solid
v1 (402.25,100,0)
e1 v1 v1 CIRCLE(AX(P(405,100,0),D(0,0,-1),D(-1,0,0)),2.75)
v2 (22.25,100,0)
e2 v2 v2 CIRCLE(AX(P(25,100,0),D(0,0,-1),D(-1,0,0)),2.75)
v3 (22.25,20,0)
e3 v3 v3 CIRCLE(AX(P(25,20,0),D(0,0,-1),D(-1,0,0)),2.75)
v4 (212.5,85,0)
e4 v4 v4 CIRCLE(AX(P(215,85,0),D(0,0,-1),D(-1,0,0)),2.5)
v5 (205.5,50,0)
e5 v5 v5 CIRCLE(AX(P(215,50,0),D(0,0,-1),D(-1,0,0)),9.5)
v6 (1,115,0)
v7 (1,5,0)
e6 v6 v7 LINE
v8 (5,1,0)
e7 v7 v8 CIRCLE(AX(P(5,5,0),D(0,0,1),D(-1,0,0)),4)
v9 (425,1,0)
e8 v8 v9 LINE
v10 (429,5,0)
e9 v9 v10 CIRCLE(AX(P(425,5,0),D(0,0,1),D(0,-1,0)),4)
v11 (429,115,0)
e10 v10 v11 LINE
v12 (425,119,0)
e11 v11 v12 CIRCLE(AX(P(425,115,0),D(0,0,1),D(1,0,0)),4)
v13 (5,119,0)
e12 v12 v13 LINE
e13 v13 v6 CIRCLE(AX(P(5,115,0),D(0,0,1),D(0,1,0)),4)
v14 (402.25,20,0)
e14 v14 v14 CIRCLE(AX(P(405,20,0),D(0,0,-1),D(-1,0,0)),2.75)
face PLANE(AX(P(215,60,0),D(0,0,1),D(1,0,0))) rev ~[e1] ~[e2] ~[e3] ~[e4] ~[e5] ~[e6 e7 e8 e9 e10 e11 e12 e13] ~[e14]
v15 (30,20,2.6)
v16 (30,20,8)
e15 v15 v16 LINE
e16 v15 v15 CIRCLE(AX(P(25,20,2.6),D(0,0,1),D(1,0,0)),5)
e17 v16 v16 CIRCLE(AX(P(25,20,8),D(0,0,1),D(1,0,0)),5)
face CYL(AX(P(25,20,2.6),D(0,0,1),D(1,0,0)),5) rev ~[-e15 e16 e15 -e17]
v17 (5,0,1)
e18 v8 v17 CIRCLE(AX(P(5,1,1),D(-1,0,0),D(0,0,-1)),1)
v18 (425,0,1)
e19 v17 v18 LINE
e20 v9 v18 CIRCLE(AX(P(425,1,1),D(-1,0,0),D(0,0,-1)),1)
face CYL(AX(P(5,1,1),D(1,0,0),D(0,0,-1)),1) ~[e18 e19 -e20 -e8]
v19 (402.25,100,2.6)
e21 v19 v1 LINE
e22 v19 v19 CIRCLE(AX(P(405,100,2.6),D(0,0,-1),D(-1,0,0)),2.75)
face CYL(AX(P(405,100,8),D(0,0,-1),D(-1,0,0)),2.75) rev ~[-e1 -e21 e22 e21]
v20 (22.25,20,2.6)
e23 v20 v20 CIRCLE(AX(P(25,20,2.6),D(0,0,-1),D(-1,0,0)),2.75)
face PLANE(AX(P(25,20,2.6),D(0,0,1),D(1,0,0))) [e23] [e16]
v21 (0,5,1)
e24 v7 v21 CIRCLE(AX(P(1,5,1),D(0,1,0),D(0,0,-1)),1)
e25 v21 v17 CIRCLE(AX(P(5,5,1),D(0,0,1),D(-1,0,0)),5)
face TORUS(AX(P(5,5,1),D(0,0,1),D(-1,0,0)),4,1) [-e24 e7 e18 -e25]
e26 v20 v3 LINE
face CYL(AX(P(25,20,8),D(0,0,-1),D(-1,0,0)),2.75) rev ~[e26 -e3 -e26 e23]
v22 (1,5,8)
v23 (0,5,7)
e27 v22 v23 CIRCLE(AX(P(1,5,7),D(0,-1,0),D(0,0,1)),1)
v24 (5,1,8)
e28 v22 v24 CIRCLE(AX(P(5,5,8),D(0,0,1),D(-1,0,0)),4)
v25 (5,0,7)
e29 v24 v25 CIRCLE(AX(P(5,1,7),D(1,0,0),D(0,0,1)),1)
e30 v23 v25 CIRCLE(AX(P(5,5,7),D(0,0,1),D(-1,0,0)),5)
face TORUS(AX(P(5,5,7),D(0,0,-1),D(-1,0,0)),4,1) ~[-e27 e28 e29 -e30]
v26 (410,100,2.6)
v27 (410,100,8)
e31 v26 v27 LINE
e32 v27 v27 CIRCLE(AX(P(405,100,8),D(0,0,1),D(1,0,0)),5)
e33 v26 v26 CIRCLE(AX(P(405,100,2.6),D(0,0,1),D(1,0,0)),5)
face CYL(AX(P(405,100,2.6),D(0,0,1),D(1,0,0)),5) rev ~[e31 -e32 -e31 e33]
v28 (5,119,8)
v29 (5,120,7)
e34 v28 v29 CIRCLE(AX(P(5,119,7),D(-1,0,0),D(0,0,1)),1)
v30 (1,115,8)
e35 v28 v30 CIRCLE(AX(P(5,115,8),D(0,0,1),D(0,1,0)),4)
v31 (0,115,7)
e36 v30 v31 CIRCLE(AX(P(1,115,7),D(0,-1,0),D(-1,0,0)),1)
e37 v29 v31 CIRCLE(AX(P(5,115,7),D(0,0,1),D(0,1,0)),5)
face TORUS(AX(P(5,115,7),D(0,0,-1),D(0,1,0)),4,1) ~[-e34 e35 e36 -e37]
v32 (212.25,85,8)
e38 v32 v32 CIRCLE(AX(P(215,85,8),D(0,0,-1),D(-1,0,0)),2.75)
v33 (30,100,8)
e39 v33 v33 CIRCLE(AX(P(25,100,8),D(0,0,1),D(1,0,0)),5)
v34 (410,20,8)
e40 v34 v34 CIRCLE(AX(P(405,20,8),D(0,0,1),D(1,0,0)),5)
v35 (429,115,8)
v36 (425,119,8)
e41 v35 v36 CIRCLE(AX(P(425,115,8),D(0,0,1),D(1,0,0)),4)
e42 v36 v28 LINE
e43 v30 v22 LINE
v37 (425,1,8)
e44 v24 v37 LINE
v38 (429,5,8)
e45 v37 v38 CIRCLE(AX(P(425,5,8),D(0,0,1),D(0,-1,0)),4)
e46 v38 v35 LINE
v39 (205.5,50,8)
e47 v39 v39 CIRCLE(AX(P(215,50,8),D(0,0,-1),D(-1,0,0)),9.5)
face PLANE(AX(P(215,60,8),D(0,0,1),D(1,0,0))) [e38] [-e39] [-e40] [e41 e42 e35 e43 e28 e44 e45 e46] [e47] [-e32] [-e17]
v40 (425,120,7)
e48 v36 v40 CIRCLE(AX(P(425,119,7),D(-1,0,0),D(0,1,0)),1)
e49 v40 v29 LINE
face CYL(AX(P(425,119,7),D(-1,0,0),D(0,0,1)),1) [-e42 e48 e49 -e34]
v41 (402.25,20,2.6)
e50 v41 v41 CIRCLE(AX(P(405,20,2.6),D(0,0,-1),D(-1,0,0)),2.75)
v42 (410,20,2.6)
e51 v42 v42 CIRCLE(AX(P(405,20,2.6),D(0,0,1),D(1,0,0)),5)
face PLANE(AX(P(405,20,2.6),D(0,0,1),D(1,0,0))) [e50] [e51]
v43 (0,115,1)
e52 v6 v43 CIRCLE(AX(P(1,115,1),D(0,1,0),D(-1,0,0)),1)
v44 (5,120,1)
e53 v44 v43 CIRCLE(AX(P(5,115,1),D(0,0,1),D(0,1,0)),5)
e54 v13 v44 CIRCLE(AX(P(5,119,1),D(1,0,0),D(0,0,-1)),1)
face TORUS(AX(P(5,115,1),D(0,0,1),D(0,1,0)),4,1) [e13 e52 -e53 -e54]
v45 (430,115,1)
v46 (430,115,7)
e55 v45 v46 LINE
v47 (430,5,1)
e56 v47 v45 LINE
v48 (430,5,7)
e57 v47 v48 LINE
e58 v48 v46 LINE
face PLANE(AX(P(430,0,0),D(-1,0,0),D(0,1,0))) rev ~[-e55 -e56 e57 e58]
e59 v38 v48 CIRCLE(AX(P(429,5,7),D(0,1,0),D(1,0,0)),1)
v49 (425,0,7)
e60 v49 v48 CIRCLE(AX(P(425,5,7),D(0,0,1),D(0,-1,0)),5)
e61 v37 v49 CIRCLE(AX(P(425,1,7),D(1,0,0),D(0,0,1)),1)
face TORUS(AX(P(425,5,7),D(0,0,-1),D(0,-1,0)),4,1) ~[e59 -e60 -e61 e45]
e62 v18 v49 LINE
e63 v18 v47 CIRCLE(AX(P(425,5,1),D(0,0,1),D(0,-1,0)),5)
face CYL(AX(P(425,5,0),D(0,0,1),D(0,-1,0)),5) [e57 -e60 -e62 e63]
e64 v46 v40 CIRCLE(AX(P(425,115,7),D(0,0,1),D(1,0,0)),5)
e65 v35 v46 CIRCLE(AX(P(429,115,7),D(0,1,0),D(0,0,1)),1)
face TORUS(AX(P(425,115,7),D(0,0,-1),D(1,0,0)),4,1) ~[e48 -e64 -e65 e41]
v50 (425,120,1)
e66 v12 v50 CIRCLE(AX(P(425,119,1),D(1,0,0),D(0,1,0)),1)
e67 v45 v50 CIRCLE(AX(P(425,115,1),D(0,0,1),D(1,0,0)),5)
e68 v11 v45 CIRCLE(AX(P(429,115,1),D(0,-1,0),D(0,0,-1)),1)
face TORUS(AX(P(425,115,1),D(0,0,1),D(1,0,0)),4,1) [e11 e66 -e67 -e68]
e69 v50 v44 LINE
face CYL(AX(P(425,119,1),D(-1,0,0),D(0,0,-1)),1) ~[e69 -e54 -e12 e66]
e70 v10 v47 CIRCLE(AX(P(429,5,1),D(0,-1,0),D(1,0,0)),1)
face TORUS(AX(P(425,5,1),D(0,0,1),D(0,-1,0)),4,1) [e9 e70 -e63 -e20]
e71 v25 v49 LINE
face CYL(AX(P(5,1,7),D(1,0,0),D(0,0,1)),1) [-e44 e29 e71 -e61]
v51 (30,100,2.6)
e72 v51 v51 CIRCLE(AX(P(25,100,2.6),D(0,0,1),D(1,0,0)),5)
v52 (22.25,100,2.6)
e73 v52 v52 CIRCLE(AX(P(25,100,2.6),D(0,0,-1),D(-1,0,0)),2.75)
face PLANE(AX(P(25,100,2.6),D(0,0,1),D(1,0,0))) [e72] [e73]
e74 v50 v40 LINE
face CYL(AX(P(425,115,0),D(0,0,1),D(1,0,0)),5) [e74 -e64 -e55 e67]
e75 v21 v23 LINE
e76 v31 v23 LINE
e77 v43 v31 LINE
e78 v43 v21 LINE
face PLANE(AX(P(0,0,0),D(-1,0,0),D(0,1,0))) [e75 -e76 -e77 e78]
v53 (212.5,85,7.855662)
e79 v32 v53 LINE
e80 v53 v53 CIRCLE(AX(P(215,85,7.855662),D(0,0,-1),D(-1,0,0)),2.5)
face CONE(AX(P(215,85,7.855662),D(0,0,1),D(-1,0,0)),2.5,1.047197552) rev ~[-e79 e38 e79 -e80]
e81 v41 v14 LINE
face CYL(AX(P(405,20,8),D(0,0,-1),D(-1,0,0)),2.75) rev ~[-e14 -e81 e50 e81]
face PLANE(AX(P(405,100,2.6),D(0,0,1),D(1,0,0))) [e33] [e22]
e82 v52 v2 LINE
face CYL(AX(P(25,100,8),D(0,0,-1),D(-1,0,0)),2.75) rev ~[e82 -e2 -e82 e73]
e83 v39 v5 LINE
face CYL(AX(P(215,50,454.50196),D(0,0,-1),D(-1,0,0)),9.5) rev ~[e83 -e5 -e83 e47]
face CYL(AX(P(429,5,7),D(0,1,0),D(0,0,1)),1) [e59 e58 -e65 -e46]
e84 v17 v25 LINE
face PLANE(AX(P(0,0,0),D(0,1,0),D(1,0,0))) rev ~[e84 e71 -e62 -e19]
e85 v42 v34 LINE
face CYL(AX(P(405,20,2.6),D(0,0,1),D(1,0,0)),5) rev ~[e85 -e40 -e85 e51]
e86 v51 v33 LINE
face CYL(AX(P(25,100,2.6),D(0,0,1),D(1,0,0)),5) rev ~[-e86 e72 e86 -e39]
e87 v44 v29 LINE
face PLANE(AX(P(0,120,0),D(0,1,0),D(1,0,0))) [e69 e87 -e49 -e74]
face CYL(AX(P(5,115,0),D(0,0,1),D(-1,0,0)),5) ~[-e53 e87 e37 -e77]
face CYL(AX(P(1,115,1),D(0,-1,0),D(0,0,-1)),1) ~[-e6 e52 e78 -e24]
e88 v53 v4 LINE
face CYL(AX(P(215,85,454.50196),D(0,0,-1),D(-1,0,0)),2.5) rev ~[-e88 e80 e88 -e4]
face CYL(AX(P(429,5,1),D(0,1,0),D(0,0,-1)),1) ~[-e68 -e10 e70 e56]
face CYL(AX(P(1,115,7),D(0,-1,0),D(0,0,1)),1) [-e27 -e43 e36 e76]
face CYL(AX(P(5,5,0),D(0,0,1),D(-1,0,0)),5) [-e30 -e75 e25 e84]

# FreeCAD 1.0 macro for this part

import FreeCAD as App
import Part
import Sketcher


def edges_at(feature, points):
    """Names of the edges that pass closest to the given points."""
    edges = feature.Shape.Edges
    near = lambda p: min(range(len(edges)), key=lambda i: edges[i].distToShape(Part.Vertex(*p))[0])
    return sorted({f"Edge{near(p) + 1}" for p in points})


def add_polygon(sketch, points):
    """Adds a closed chain of lines whose ends are joined by coincident constraints."""
    first, n = sketch.GeometryCount, len(points)
    for a, b in zip(points, points[1:] + points[:1]):
        sketch.addGeometry(Part.LineSegment(App.Vector(*a, 0), App.Vector(*b, 0)), False)
    for i in range(n):
        sketch.addConstraint(Sketcher.Constraint("Coincident", first + i, 2, first + (i + 1) % n, 1))

doc = App.newDocument("Part")
body = doc.addObject("PartDesign::Body", "Body")

sketch1 = body.newObject("Sketcher::SketchObject", "Sketch")
sketch1.AttachmentSupport = (doc.getObject("XY_Plane"), [""])
sketch1.MapMode = "FlatFace"
add_polygon(sketch1, [(0, 120), (0, 0), (430, 0), (430, 120)])
sketch1.addConstraint([
    Sketcher.Constraint("Vertical", 0),
    Sketcher.Constraint("Horizontal", 1),
    Sketcher.Constraint("Vertical", 2),
    Sketcher.Constraint("Horizontal", 3),
    Sketcher.Constraint("Coincident", 0, 2, -1, 1),
    Sketcher.Constraint("DistanceX", 1, 1, 1, 2, 430.0),
    Sketcher.Constraint("DistanceY", 0, 2, 0, 1, 120.0),
])
pad1 = body.newObject("PartDesign::Pad", "Pad")
pad1.Profile = sketch1
pad1.Length = 8
doc.recompute()

fillet = body.newObject("PartDesign::Fillet", "Fillet")
fillet.Base = (pad1, edges_at(pad1, [
    (0, 120, 4),
    (430, 120, 4),
    (430, 0, 4),
    (0, 0, 4),
]))
fillet.Radius = 5
doc.recompute()

fillet2 = body.newObject("PartDesign::Fillet", "Fillet001")
fillet2.Base = (fillet, edges_at(fillet, [
    (215, 0, 0),
    (215, 0, 8),
    (0, 60, 0),
    (215, 120, 0),
    (430, 60, 0),
    (1.464, 118.536, 0),
    (428.536, 118.536, 0),
    (428.536, 1.464, 0),
    (1.464, 1.464, 0),
    (0, 60, 8),
    (430, 60, 8),
    (215, 120, 8),
    (1.464, 118.536, 8),
    (428.536, 118.536, 8),
    (428.536, 1.464, 8),
    (1.464, 1.464, 8),
]))
fillet2.Radius = 1

sketch2 = body.newObject("Sketcher::SketchObject", "Sketch001")
sketch2.AttachmentSupport = (doc.getObject("XY_Plane"), [""])
sketch2.MapMode = "FlatFace"
sketch2.AttachmentOffset = App.Placement(App.Vector(0, 0, 8), App.Rotation())
sketch2.addGeometry(Part.Circle(App.Vector(215, 85, 0), App.Vector(0, 0, 1), 2.5), False)
sketch2.addConstraint([
    Sketcher.Constraint("Diameter", 0, 5.0),
    Sketcher.Constraint("DistanceX", -1, 1, 0, 3, 215.0),
    Sketcher.Constraint("DistanceY", -1, 1, 0, 3, 85.0),
])
doc.recompute()
hole = body.newObject("PartDesign::Hole", "Hole")
hole.Profile = sketch2
hole.ThreadType = "None"
hole.Diameter = 5
hole.DepthType = "ThroughAll"

sketch3 = body.newObject("Sketcher::SketchObject", "Sketch002")
sketch3.AttachmentSupport = (doc.getObject("XY_Plane"), [""])
sketch3.MapMode = "FlatFace"
sketch3.AttachmentOffset = App.Placement(App.Vector(0, 0, 8), App.Rotation())
sketch3.addGeometry(Part.Circle(App.Vector(215, 50, 0), App.Vector(0, 0, 1), 10), False)
sketch3.addConstraint([
    Sketcher.Constraint("Diameter", 0, 19.0),
    Sketcher.Constraint("DistanceX", -1, 1, 0, 3, 215.0),
    Sketcher.Constraint("DistanceY", -1, 1, 0, 3, 50.0),
])
doc.recompute()
hole2 = body.newObject("PartDesign::Hole", "Hole001")
hole2.Profile = sketch3
hole2.ThreadType = "None"
hole2.Diameter = 19
hole2.DepthType = "ThroughAll"
doc.recompute()

chamfer = body.newObject("PartDesign::Chamfer", "Chamfer")
chamfer.Base = (hole2, edges_at(hole2, [(217.5, 85, 8)]))
chamfer.ChamferType = "Two distances"
chamfer.Size = 0.25
chamfer.Size2 = 0.144338

sketch4 = body.newObject("Sketcher::SketchObject", "Sketch003")
sketch4.AttachmentSupport = (doc.getObject("XY_Plane"), [""])
sketch4.MapMode = "FlatFace"
sketch4.AttachmentOffset = App.Placement(App.Vector(0, 0, 8), App.Rotation())
sketch4.addGeometry([
    Part.Circle(App.Vector(25, 20, 0), App.Vector(0, 0, 1), 2.8),
    Part.Circle(App.Vector(25, 100, 0), App.Vector(0, 0, 1), 2.8),
    Part.Circle(App.Vector(405, 20, 0), App.Vector(0, 0, 1), 2.8),
    Part.Circle(App.Vector(405, 100, 0), App.Vector(0, 0, 1), 2.8),
], False)
sketch4.addConstraint([
    Sketcher.Constraint("Equal", 0, 1),
    Sketcher.Constraint("Equal", 1, 2),
    Sketcher.Constraint("Equal", 2, 3),
    Sketcher.Constraint("Horizontal", 0, 3, 2, 3),
    Sketcher.Constraint("Horizontal", 1, 3, 3, 3),
    Sketcher.Constraint("Vertical", 0, 3, 1, 3),
    Sketcher.Constraint("Vertical", 2, 3, 3, 3),
    Sketcher.Constraint("Diameter", 0, 5.5),
    Sketcher.Constraint("DistanceX", -1, 1, 0, 3, 25.0),
    Sketcher.Constraint("DistanceY", -1, 1, 0, 3, 20.0),
    Sketcher.Constraint("DistanceY", -1, 1, 1, 3, 100.0),
    Sketcher.Constraint("DistanceX", -1, 1, 2, 3, 405.0),
])
doc.recompute()
hole3 = body.newObject("PartDesign::Hole", "Hole002")
hole3.Profile = sketch4
hole3.ThreadType = "None"
hole3.Diameter = 5.5
hole3.DepthType = "ThroughAll"
hole3.HoleCutType = "Counterbore"
hole3.HoleCutDiameter = 10
hole3.HoleCutDepth = 5.4

doc.recompute()
